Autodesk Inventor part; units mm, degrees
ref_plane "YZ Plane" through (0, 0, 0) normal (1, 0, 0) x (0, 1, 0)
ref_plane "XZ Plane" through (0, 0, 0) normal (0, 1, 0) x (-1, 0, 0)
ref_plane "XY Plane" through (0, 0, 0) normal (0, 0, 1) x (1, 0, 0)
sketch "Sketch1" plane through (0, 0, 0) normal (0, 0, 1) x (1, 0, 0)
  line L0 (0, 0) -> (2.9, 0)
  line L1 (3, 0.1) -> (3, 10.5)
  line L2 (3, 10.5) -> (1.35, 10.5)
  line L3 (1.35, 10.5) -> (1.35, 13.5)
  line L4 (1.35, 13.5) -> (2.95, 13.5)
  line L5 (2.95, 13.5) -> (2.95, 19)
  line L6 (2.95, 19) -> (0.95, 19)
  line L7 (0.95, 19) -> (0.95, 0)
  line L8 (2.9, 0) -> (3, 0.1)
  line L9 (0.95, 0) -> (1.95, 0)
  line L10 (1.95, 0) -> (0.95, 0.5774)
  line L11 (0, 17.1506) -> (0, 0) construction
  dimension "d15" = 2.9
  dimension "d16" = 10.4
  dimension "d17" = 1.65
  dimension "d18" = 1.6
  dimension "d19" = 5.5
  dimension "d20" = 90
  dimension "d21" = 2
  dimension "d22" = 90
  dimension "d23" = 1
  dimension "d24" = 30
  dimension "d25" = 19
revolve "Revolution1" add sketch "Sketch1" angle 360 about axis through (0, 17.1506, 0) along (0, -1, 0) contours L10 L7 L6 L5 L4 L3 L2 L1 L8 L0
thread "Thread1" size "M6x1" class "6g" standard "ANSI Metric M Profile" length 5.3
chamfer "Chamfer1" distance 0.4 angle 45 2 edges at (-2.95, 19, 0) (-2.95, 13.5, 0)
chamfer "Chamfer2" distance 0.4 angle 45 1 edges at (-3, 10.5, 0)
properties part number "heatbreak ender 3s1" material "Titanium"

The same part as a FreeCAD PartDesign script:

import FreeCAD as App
import Part
import Sketcher
Q = App.Units.Quantity


def edges_at(feature, points):
    """Names of the edges that pass closest to the given points."""
    edges = feature.Shape.Edges
    near = lambda p: min(range(len(edges)), key=lambda i: edges[i].distToShape(Part.Vertex(*p))[0])
    return sorted({f"Edge{near(p) + 1}" for p in points})

doc = App.newDocument("Part")
body = doc.addObject("PartDesign::Body", "Body")

sketch1 = doc.addObject("Sketcher::SketchObject", "Sketch")
body.addObject(sketch1)
sketch1.AttachmentSupport = (doc.XY_Plane, [""])
sketch1.MapMode = "FlatFace"
sketch1.addGeometry([
    Part.LineSegment(App.Vector(0.95, 0.58, 0), App.Vector(1.95, 0, 0)),
    Part.LineSegment(App.Vector(1.95, 0, 0), App.Vector(2.9, 0, 0)),
    Part.LineSegment(App.Vector(2.9, 0, 0), App.Vector(3, 0.1, 0)),
    Part.LineSegment(App.Vector(3, 0.1, 0), App.Vector(3, 10.5, 0)),
    Part.LineSegment(App.Vector(3, 10.5, 0), App.Vector(1.35, 10.5, 0)),
    Part.LineSegment(App.Vector(1.35, 10.5, 0), App.Vector(1.35, 13.5, 0)),
    Part.LineSegment(App.Vector(1.35, 13.5, 0), App.Vector(2.95, 13.5, 0)),
    Part.LineSegment(App.Vector(2.95, 13.5, 0), App.Vector(2.95, 19, 0)),
    Part.LineSegment(App.Vector(2.95, 19, 0), App.Vector(0.95, 19, 0)),
    Part.LineSegment(App.Vector(0.95, 19, 0), App.Vector(0.95, 0.58, 0)),
], False)
sketch1.addConstraint([
    Sketcher.Constraint("Coincident", 0, 2, 1, 1),
    Sketcher.Constraint("Coincident", 1, 2, 2, 1),
    Sketcher.Constraint("Coincident", 2, 2, 3, 1),
    Sketcher.Constraint("Coincident", 3, 2, 4, 1),
    Sketcher.Constraint("Coincident", 4, 2, 5, 1),
    Sketcher.Constraint("Coincident", 5, 2, 6, 1),
    Sketcher.Constraint("Coincident", 6, 2, 7, 1),
    Sketcher.Constraint("Coincident", 7, 2, 8, 1),
    Sketcher.Constraint("Coincident", 8, 2, 9, 1),
    Sketcher.Constraint("Coincident", 9, 2, 0, 1),
    Sketcher.Constraint("Horizontal", 1),
    Sketcher.Constraint("Vertical", 3),
    Sketcher.Constraint("Horizontal", 4),
    Sketcher.Constraint("Vertical", 5),
    Sketcher.Constraint("Horizontal", 6),
    Sketcher.Constraint("Vertical", 7),
    Sketcher.Constraint("Horizontal", 8),
    Sketcher.Constraint("Vertical", 9),
    Sketcher.Constraint("PointOnObject", 0, 2, -1),
    Sketcher.Constraint("DistanceX", 8, 2, 8, 1, Q("2 mm")),
    Sketcher.Constraint("DistanceX", 6, 1, 6, 2, Q("1.6 mm")),
    Sketcher.Constraint("DistanceY", 3, 1, 3, 2, Q("10.4 mm")),
    Sketcher.Constraint("DistanceY", 7, 1, 7, 2, Q("5.5 mm")),
    Sketcher.Constraint("DistanceY", -1, 1, 7, 2, Q("19 mm")),
    Sketcher.Constraint("DistanceX", 9, 2, 0, 2, Q("1 mm")),
    Sketcher.Constraint("DistanceX", 4, 2, 4, 1, Q("1.65 mm")),
    Sketcher.Constraint("DistanceX", -1, 1, 1, 2, Q("2.9 mm")),
    Sketcher.Constraint("DistanceY", 5, 1, 5, 2, Q("3 mm")),
    Sketcher.Constraint("Angle", 2, Q("45 deg")),
    Sketcher.Constraint("DistanceY", 9, 2, 9, 1, Q("18.4226 mm")),
])
revolution = doc.addObject("PartDesign::Revolution", "Revolution")
body.addObject(revolution)
revolution.Profile = sketch1
revolution.ReferenceAxis = (sketch1, ["V_Axis"])
revolution.Angle = 360
doc.recompute()

chamfer = doc.addObject("PartDesign::Chamfer", "Chamfer")
body.addObject(chamfer)
chamfer.Base = (revolution, edges_at(revolution, [(-2.95, 19, 0), (-2.95, 13.5, 0)]))
chamfer.Size = 0.4
doc.recompute()

chamfer2 = doc.addObject("PartDesign::Chamfer", "Chamfer001")
body.addObject(chamfer2)
chamfer2.Base = (chamfer, edges_at(chamfer, [(-3, 10.5, 0)]))
chamfer2.Size = 0.4

doc.recompute()
